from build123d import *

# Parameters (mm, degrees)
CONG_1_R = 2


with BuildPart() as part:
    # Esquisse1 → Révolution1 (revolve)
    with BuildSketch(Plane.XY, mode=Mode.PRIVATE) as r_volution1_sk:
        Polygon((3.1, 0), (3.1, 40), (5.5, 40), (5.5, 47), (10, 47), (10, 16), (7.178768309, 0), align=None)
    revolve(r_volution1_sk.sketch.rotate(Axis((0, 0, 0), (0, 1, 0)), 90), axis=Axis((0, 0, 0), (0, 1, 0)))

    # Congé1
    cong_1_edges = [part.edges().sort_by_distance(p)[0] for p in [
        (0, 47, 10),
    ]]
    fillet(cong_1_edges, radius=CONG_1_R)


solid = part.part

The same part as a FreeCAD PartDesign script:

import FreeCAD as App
import Part
import Sketcher
Q = App.Units.Quantity


def edges_at(feature, points):
    """Names of the edges that pass closest to the given points."""
    edges = feature.Shape.Edges
    near = lambda p: min(range(len(edges)), key=lambda i: edges[i].distToShape(Part.Vertex(*p))[0])
    return sorted({f"Edge{near(p) + 1}" for p in points})

doc = App.newDocument("Part")
body = doc.addObject("PartDesign::Body", "Body")

sketch1 = body.newObject("Sketcher::SketchObject", "Sketch")
sketch1.AttachmentSupport = (doc.getObject("XY_Plane"), [""])
sketch1.MapMode = "FlatFace"
sketch1.addGeometry(Part.LineSegment(App.Vector(3.1, 40, 0), App.Vector(3.1, 0, 0)), False)
sketch1.addGeometry(Part.LineSegment(App.Vector(3.1, 0, 0), App.Vector(7.2, 0, 0)), False)
sketch1.addGeometry(Part.LineSegment(App.Vector(7.2, 0, 0), App.Vector(10, 16, 0)), False)
sketch1.addGeometry(Part.LineSegment(App.Vector(10, 16, 0), App.Vector(10, 47, 0)), False)
sketch1.addGeometry(Part.LineSegment(App.Vector(10, 47, 0), App.Vector(5.5, 47, 0)), False)
sketch1.addGeometry(Part.LineSegment(App.Vector(5.5, 47, 0), App.Vector(5.5, 40, 0)), False)
sketch1.addGeometry(Part.LineSegment(App.Vector(5.5, 40, 0), App.Vector(3.1, 40, 0)), False)
sketch1.addConstraint(Sketcher.Constraint("Coincident", 0, 2, 1, 1))
sketch1.addConstraint(Sketcher.Constraint("Coincident", 1, 2, 2, 1))
sketch1.addConstraint(Sketcher.Constraint("Coincident", 2, 2, 3, 1))
sketch1.addConstraint(Sketcher.Constraint("Coincident", 3, 2, 4, 1))
sketch1.addConstraint(Sketcher.Constraint("Coincident", 4, 2, 5, 1))
sketch1.addConstraint(Sketcher.Constraint("Coincident", 5, 2, 6, 1))
sketch1.addConstraint(Sketcher.Constraint("Coincident", 6, 2, 0, 1))
sketch1.addConstraint(Sketcher.Constraint("Vertical", 0))
sketch1.addConstraint(Sketcher.Constraint("Horizontal", 1))
sketch1.addConstraint(Sketcher.Constraint("Vertical", 3))
sketch1.addConstraint(Sketcher.Constraint("Horizontal", 4))
sketch1.addConstraint(Sketcher.Constraint("Vertical", 5))
sketch1.addConstraint(Sketcher.Constraint("Horizontal", 6))
sketch1.addConstraint(Sketcher.Constraint("PointOnObject", 0, 2, -1))
sketch1.addConstraint(Sketcher.Constraint("DistanceY", 0, 2, 0, 1, Q("40 mm")))
sketch1.addConstraint(Sketcher.Constraint("DistanceY", 3, 1, 3, 2, Q("31 mm")))
sketch1.addConstraint(Sketcher.Constraint("DistanceY", 5, 2, 5, 1, Q("7 mm")))
sketch1.addConstraint(Sketcher.Constraint("Angle", 2, Q("80 deg")))
sketch1.addConstraint(Sketcher.Constraint("DistanceX", 4, 2, 4, 1, Q("4.5 mm")))
sketch1.addConstraint(Sketcher.Constraint("DistanceX", 6, 2, 6, 1, Q("2.4 mm")))
sketch1.addConstraint(Sketcher.Constraint("DistanceX", -1, 1, 2, 2, Q("10 mm")))
revolution = body.newObject("PartDesign::Revolution", "Revolution")
revolution.Profile = sketch1
revolution.ReferenceAxis = (sketch1, ["V_Axis"])
revolution.Angle = 360
doc.recompute()

fillet = body.newObject("PartDesign::Fillet", "Fillet")
fillet.Base = (revolution, edges_at(revolution, [(0, 47, 10)]))
fillet.Radius = 2

doc.recompute()
